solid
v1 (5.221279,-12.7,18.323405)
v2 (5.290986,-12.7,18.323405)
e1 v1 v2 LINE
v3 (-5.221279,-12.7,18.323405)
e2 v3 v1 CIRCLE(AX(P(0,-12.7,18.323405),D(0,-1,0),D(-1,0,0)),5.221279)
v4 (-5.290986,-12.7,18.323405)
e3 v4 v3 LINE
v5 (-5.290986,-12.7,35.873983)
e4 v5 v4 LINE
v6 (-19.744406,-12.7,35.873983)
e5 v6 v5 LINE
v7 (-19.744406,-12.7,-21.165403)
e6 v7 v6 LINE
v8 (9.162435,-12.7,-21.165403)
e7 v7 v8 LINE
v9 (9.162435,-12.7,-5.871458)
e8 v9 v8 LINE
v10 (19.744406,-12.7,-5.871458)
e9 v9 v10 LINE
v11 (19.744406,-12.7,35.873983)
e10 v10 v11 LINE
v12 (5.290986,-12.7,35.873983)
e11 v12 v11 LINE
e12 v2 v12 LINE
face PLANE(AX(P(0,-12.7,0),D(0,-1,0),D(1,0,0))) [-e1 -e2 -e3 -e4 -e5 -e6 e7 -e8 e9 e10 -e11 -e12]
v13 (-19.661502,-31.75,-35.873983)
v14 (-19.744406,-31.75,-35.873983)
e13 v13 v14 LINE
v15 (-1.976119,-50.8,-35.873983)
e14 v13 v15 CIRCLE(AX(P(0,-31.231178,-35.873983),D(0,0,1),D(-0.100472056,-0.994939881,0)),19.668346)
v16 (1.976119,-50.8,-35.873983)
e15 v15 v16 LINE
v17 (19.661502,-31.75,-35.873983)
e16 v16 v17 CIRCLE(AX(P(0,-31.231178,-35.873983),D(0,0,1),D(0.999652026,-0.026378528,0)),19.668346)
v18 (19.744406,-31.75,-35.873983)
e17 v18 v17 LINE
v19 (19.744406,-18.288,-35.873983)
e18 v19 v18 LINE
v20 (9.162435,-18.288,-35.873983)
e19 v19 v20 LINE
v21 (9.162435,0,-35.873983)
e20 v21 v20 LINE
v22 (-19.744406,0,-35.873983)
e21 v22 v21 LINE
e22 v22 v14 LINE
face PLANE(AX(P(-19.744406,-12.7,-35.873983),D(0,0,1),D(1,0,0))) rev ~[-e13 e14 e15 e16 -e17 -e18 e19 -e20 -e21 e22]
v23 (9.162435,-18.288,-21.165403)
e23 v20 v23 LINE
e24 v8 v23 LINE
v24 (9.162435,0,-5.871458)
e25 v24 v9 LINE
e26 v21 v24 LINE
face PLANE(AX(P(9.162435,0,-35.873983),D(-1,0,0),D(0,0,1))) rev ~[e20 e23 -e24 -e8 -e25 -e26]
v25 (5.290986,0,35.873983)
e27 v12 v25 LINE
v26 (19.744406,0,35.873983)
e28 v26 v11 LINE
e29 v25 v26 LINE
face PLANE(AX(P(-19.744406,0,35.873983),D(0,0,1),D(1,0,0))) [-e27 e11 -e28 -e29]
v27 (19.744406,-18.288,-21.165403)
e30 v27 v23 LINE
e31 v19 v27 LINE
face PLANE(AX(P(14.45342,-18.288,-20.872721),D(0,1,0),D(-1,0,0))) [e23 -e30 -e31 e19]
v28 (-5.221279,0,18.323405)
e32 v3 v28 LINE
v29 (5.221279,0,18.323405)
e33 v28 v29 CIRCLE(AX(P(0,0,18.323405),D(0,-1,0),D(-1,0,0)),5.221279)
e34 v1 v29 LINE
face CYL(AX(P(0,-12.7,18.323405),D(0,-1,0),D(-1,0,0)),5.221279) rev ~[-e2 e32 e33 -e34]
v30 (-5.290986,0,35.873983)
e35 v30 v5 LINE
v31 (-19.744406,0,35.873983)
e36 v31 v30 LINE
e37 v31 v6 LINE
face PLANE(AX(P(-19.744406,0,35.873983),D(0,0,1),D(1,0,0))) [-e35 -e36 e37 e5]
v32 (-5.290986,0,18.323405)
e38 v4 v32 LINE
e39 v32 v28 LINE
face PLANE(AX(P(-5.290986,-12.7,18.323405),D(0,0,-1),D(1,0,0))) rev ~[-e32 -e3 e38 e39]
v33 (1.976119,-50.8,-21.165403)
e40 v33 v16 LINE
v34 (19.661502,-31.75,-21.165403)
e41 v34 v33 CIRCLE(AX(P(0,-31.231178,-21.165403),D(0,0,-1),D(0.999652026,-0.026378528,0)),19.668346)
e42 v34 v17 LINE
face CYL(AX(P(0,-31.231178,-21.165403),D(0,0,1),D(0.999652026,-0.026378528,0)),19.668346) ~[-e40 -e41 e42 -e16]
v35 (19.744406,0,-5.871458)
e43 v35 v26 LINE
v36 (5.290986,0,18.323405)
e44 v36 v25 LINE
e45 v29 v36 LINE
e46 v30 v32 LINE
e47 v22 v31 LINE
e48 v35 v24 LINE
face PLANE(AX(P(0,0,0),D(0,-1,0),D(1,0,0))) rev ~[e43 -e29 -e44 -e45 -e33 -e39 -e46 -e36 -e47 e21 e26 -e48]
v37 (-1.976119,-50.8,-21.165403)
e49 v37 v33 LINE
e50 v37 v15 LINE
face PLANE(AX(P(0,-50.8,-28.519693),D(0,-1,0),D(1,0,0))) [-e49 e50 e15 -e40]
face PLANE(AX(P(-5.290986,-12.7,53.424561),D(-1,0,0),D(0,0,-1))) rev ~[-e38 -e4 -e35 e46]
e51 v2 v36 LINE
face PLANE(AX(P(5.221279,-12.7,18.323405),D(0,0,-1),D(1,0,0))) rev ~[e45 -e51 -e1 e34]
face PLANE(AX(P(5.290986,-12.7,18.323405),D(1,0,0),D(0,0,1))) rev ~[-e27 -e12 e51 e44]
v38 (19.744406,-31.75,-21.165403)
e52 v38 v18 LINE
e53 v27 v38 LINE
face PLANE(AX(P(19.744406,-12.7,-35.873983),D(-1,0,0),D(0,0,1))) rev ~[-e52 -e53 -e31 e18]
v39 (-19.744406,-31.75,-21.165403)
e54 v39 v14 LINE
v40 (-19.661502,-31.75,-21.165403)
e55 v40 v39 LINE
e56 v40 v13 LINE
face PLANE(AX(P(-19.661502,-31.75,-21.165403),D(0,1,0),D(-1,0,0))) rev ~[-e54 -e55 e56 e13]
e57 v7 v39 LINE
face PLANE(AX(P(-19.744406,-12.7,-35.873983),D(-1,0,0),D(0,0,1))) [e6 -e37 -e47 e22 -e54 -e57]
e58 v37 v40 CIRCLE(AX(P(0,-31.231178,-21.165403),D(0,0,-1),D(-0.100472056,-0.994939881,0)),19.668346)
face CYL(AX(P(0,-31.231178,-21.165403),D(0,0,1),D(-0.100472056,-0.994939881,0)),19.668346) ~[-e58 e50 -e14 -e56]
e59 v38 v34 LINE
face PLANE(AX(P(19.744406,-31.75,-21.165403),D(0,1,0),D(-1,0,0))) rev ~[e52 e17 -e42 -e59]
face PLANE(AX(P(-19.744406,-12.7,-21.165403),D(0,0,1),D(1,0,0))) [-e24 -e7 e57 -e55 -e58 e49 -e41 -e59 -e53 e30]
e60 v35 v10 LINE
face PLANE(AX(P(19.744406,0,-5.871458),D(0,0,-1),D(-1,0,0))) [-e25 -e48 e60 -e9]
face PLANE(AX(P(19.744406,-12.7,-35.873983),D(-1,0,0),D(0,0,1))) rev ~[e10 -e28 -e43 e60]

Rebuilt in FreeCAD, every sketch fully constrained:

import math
import FreeCAD as App
import Part
import Sketcher
from FreeCAD import Vector
Q = App.Units.Quantity


def add_polygon(sketch, points):
    """Adds a closed chain of lines whose ends are joined by coincident constraints."""
    first, n = sketch.GeometryCount, len(points)
    for a, b in zip(points, points[1:] + points[:1]):
        sketch.addGeometry(Part.LineSegment(App.Vector(*a, 0), App.Vector(*b, 0)), False)
    for i in range(n):
        sketch.addConstraint(Sketcher.Constraint("Coincident", first + i, 2, first + (i + 1) % n, 1))

doc = App.newDocument("Part")
params = doc.addObject("Spreadsheet::Sheet", "Params")
for row, (alias, value) in enumerate([
    ("pad1_length", "0.5 in"),
    ("pad2_length", "1.5 in"),
    ("pocket1_length", "1 in"),
    ("sketch4_height", "0.75 in"),
    ("pocket2_length", "1 in"),
    ("pocket3_length", "0.72 in"),
], start=1):
    params.set(f"A{row}", alias)
    params.set(f"B{row}", "=" + value)
    params.setAlias(f"B{row}", alias)

body = doc.addObject("PartDesign::Body", "Body")

# Sketch on XZ plane
sketch1 = doc.addObject("Sketcher::SketchObject", "Sketch")
body.addObject(sketch1)
sketch1.AttachmentSupport = (doc.XZ_Plane, [""])
sketch1.MapMode = "FlatFace"
add_polygon(sketch1, [(-20, 36), (-20, -36), (20, -36), (20, 36)])  # lines 0-3
sketch1.addConstraint(Sketcher.Constraint("Vertical", 0))
sketch1.addConstraint(Sketcher.Constraint("Horizontal", 1))
sketch1.addConstraint(Sketcher.Constraint("Vertical", 2))
sketch1.addConstraint(Sketcher.Constraint("Horizontal", 3))
sketch1.addConstraint(Sketcher.Constraint("Symmetric", 0, 2, 2, 2, -1, 1))
sketch1.addConstraint(Sketcher.Constraint("DistanceX", 1, 1, 1, 2, 39.488811))
sketch1.addConstraint(Sketcher.Constraint("DistanceY", 0, 2, 0, 1, 71.747966))
pad1 = doc.addObject("PartDesign::Pad", "Pad")
body.addObject(pad1)
pad1.Profile = sketch1
pad1.setExpression("Length", "Params.pad1_length")

# Sketch on XZ plane
sketch2 = doc.addObject("Sketcher::SketchObject", "Sketch001")
body.addObject(sketch2)
sketch2.AttachmentSupport = (doc.XZ_Plane, [""])
sketch2.MapMode = "FlatFace"
sketch2.AttachmentOffset = App.Placement(Vector(0, 0, 0.5 * 25.4), App.Rotation())
add_polygon(sketch2, [(-20, -21), (-20, -36), (20, -36), (20, -21)])  # lines 0-3
sketch2.addConstraint(Sketcher.Constraint("Vertical", 0))
sketch2.addConstraint(Sketcher.Constraint("Horizontal", 1))
sketch2.addConstraint(Sketcher.Constraint("Vertical", 2))
sketch2.addConstraint(Sketcher.Constraint("Horizontal", 3))
sketch2.addConstraint(Sketcher.Constraint("DistanceX", 1, 1, 1, 2, 39.488811))
sketch2.addConstraint(Sketcher.Constraint("DistanceY", 0, 2, 0, 1, 14.70858))
sketch2.addConstraint(Sketcher.Constraint("DistanceX", 0, 2, -1, 1, 19.744406))
sketch2.addConstraint(Sketcher.Constraint("DistanceY", 0, 2, -1, 1, 35.873983))
pad2 = doc.addObject("PartDesign::Pad", "Pad001")
body.addObject(pad2)
pad2.Profile = sketch2
pad2.setExpression("Length", "Params.pad2_length")

# Sketch on XZ plane
sketch3 = doc.addObject("Sketcher::SketchObject", "Sketch002")
body.addObject(sketch3)
sketch3.AttachmentSupport = (doc.XZ_Plane, [""])
sketch3.MapMode = "FlatFace"
sketch3.AttachmentOffset = App.Placement(Vector(0, 0, 0.5 * 25.4), App.Rotation())
sketch3.addGeometry(Part.LineSegment(Vector(-5.29, 53.42, 0), Vector(-5.29, 18.32, 0)), False)
sketch3.addGeometry(Part.LineSegment(Vector(-5.29, 18.32, 0), Vector(-5.22, 18.32, 0)), False)
sketch3.addGeometry(Part.ArcOfCircle(Part.Circle(Vector(0, 18.32, 0), Vector(0, 0, 1), 5.22), math.radians(180), math.radians(360)), False)
sketch3.addGeometry(Part.LineSegment(Vector(5.22, 18.32, 0), Vector(5.29, 18.32, 0)), False)
sketch3.addGeometry(Part.LineSegment(Vector(5.29, 18.32, 0), Vector(5.29, 53.42, 0)), False)
sketch3.addGeometry(Part.LineSegment(Vector(5.29, 53.42, 0), Vector(-5.29, 53.42, 0)), False)
sketch3.addConstraint(Sketcher.Constraint("Coincident", 0, 2, 1, 1))
sketch3.addConstraint(Sketcher.Constraint("Coincident", 1, 2, 2, 1))
sketch3.addConstraint(Sketcher.Constraint("Coincident", 2, 2, 3, 1))
sketch3.addConstraint(Sketcher.Constraint("Coincident", 3, 2, 4, 1))
sketch3.addConstraint(Sketcher.Constraint("Coincident", 4, 2, 5, 1))
sketch3.addConstraint(Sketcher.Constraint("Coincident", 5, 2, 0, 1))
sketch3.addConstraint(Sketcher.Constraint("Vertical", 0))
sketch3.addConstraint(Sketcher.Constraint("Horizontal", 1))
sketch3.addConstraint(Sketcher.Constraint("Horizontal", 3))
sketch3.addConstraint(Sketcher.Constraint("Vertical", 4))
sketch3.addConstraint(Sketcher.Constraint("Horizontal", 5))
sketch3.addConstraint(Sketcher.Constraint("Symmetric", 1, 2, 2, 2, -2))
sketch3.addConstraint(Sketcher.Constraint("Horizontal", 2, 3, 0, 2))
sketch3.addConstraint(Sketcher.Constraint("Equal", 1, 3))
sketch3.addConstraint(Sketcher.Constraint("Radius", 2, 5.221279))
sketch3.addConstraint(Sketcher.Constraint("DistanceX", 1, 1, 1, 2, 0.069707))
sketch3.addConstraint(Sketcher.Constraint("DistanceY", 0, 2, 0, 1, 35.101157))
sketch3.addConstraint(Sketcher.Constraint("DistanceY", -1, 1, 4, 2, 53.424561))
pocket1 = doc.addObject("PartDesign::Pocket", "Pocket")
body.addObject(pocket1)
pocket1.Profile = sketch3
pocket1.setExpression("Length", "Params.pocket1_length")

# Sketch on XY plane
sketch4 = doc.addObject("Sketcher::SketchObject", "Sketch003")
body.addObject(sketch4)
sketch4.AttachmentSupport = (doc.XY_Plane, [""])
sketch4.MapMode = "FlatFace"
sketch4.AttachmentOffset = App.Placement(Vector(0, 0, -21.165403), App.Rotation())
sketch4.addGeometry(Part.ArcOfCircle(Part.Circle(Vector(0, -31.23, 0), Vector(0, 0, 1), 19.67), math.radians(-178), math.radians(-96)), False)
sketch4.addGeometry(Part.LineSegment(Vector(-19.66, -31.75, 0), Vector(-19.74, -31.75, 0)), False)
sketch4.addGeometry(Part.LineSegment(Vector(-19.74, -31.75, 0), Vector(-19.74, -50.8, 0)), False)
sketch4.addGeometry(Part.LineSegment(Vector(-19.74, -50.8, 0), Vector(-1.98, -50.8, 0)), False)
sketch4.addGeometry(Part.LineSegment(Vector(19.74, -31.75, 0), Vector(19.66, -31.75, 0)), False)
sketch4.addGeometry(Part.ArcOfCircle(Part.Circle(Vector(0, -31.23, 0), Vector(0, 0, 1), 19.67), math.radians(-84), math.radians(-2)), False)
sketch4.addGeometry(Part.LineSegment(Vector(1.98, -50.8, 0), Vector(19.74, -50.8, 0)), False)
sketch4.addGeometry(Part.LineSegment(Vector(19.74, -50.8, 0), Vector(19.74, -31.75, 0)), False)
sketch4.addConstraint(Sketcher.Constraint("Coincident", 0, 1, 1, 1))
sketch4.addConstraint(Sketcher.Constraint("Coincident", 1, 2, 2, 1))
sketch4.addConstraint(Sketcher.Constraint("Coincident", 2, 2, 3, 1))
sketch4.addConstraint(Sketcher.Constraint("Coincident", 3, 2, 0, 2))
sketch4.addConstraint(Sketcher.Constraint("Coincident", 4, 2, 5, 2))
sketch4.addConstraint(Sketcher.Constraint("Coincident", 5, 1, 6, 1))
sketch4.addConstraint(Sketcher.Constraint("Coincident", 6, 2, 7, 1))
sketch4.addConstraint(Sketcher.Constraint("Coincident", 7, 2, 4, 1))
sketch4.addConstraint(Sketcher.Constraint("Horizontal", 1))
sketch4.addConstraint(Sketcher.Constraint("Vertical", 2))
sketch4.addConstraint(Sketcher.Constraint("Horizontal", 3))
sketch4.addConstraint(Sketcher.Constraint("Horizontal", 4))
sketch4.addConstraint(Sketcher.Constraint("Horizontal", 6))
sketch4.addConstraint(Sketcher.Constraint("Vertical", 7))
sketch4.addConstraint(Sketcher.Constraint("Coincident", 5, 3, 0, 3))
sketch4.addConstraint(Sketcher.Constraint("Equal", 0, 5))
sketch4.addConstraint(Sketcher.Constraint("Symmetric", 0, 1, 4, 2, -2))
sketch4.addConstraint(Sketcher.Constraint("Symmetric", 2, 2, 6, 2, -2))
sketch4.addConstraint(Sketcher.Constraint("DistanceY", 2, 2, -1, 1, Q("2 in")))
sketch4.addConstraint(Sketcher.Constraint("DistanceY", 2, 2, 2, 1, Q("0.75 in")))
sketch4.addConstraint(Sketcher.Constraint("DistanceX", 3, 2, -1, 1, Q("0.0778 in")))
sketch4.addConstraint(Sketcher.Constraint("Radius", 0, 19.668346))
sketch4.addConstraint(Sketcher.Constraint("DistanceX", 1, 2, 1, 1, 0.082903))
sketch4.setExpression("Constraints[19]", "Params.sketch4_height")
pocket2 = doc.addObject("PartDesign::Pocket", "Pocket001")
body.addObject(pocket2)
pocket2.Profile = sketch4
pocket2.setExpression("Length", "Params.pocket2_length")

# Sketch on XZ plane
sketch5 = doc.addObject("Sketcher::SketchObject", "Sketch004")
body.addObject(sketch5)
sketch5.AttachmentSupport = (doc.XZ_Plane, [""])
sketch5.MapMode = "FlatFace"
add_polygon(sketch5, [(20, -6), (20, -36), (9, -36), (9, -6)])  # lines 0-3
sketch5.addConstraint(Sketcher.Constraint("Vertical", 0))
sketch5.addConstraint(Sketcher.Constraint("Horizontal", 1))
sketch5.addConstraint(Sketcher.Constraint("Vertical", 2))
sketch5.addConstraint(Sketcher.Constraint("Horizontal", 3))
sketch5.addConstraint(Sketcher.Constraint("DistanceX", 1, 2, 1, 1, 10.58197))
sketch5.addConstraint(Sketcher.Constraint("DistanceY", 0, 2, 0, 1, 30.002525))
sketch5.addConstraint(Sketcher.Constraint("DistanceX", -1, 1, 0, 2, 19.744406))
sketch5.addConstraint(Sketcher.Constraint("DistanceY", 0, 2, -1, 1, 35.873983))
pocket3 = doc.addObject("PartDesign::Pocket", "Pocket002")
body.addObject(pocket3)
pocket3.Profile = sketch5
pocket3.setExpression("Length", "Params.pocket3_length")
pocket3.Reversed = True

doc.recompute()
